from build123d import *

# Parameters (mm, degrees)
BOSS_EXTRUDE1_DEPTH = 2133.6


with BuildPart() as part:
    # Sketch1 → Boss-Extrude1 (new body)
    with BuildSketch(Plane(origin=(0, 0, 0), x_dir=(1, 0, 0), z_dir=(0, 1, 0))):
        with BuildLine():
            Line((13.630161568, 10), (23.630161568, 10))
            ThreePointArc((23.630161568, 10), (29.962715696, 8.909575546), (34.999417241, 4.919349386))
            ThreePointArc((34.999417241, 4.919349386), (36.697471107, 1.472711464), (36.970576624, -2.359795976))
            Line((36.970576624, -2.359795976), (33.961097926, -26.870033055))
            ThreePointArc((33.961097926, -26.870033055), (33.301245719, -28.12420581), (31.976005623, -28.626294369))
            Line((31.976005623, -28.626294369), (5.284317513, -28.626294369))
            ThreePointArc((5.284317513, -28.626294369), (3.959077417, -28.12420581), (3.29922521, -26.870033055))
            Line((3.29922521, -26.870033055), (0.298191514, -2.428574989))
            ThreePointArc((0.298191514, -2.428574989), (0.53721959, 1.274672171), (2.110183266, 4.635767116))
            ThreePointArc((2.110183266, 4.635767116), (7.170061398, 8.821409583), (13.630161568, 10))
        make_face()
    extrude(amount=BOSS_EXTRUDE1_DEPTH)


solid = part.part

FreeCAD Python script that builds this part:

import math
import FreeCAD as App
import Part
import Sketcher
Q = App.Units.Quantity

doc = App.newDocument("Part")
body = doc.addObject("PartDesign::Body", "Body")

# Sketch on XZ plane
sketch1 = doc.addObject("Sketcher::SketchObject", "Sketch")
body.addObject(sketch1)
sketch1.AttachmentSupport = (doc.XZ_Plane, [""])
sketch1.MapMode = "FlatFace"
sketch1.addGeometry([
    Part.LineSegment(App.Vector(23.6, -10, 0), App.Vector(13.6, -10, 0)),  # 0
    Part.ArcOfCircle(Part.Circle(App.Vector(12.7, 3, 0), App.Vector(0, 0, 1), 13), math.radians(-144), math.radians(-86)),  # 1
    Part.ArcOfCircle(Part.Circle(App.Vector(10.2, 1.2, 0), App.Vector(0, 0, 1), 10), math.radians(173), math.radians(216)),  # 2
    Part.LineSegment(App.Vector(0.3, 2.4, 0), App.Vector(3.3, 26.9, 0)),  # 3
    Part.ArcOfCircle(Part.Circle(App.Vector(5.3, 26.6, 0), App.Vector(0, 0, 1), 2), math.radians(90), math.radians(173)),  # 4
    Part.LineSegment(App.Vector(5.3, 28.6, 0), App.Vector(32, 28.6, 0)),  # 5
    Part.ArcOfCircle(Part.Circle(App.Vector(32, 26.6, 0), App.Vector(0, 0, 1), 2), math.radians(7), math.radians(90)),  # 6
    Part.LineSegment(App.Vector(34, 26.9, 0), App.Vector(37, 2.4, 0)),  # 7
    Part.ArcOfCircle(Part.Circle(App.Vector(27, 1.1, 0), App.Vector(0, 0, 1), 10), math.radians(-37), math.radians(7)),  # 8
    Part.ArcOfCircle(Part.Circle(App.Vector(24.7, 3, 0), App.Vector(0, 0, 1), 13), math.radians(-95), math.radians(-37)),  # 9
], False)
sketch1.addConstraint([
    Sketcher.Constraint("Coincident", 0, 2, 1, 2),
    Sketcher.Constraint("Tangent", 1, 1, 2, 2),
    Sketcher.Constraint("Tangent", 2, 1, 3, 1),
    Sketcher.Constraint("Tangent", 3, 2, 4, 2),
    Sketcher.Constraint("Tangent", 4, 1, 5, 1),
    Sketcher.Constraint("Tangent", 5, 2, 6, 2),
    Sketcher.Constraint("Tangent", 6, 1, 7, 1),
    Sketcher.Constraint("Tangent", 7, 2, 8, 2),
    Sketcher.Constraint("Tangent", 8, 1, 9, 2),
    Sketcher.Constraint("Coincident", 9, 1, 0, 1),
    Sketcher.Constraint("Horizontal", 0),
    Sketcher.Constraint("Horizontal", 5),
    Sketcher.Constraint("Equal", 4, 6),
    Sketcher.Constraint("Equal", 2, 8),
    Sketcher.Constraint("Equal", 1, 9),
    Sketcher.Constraint("Horizontal", 3, 2, 6, 1),
    Sketcher.Constraint("Radius", 1, 13.0),
    Sketcher.Constraint("Radius", 2, 10.0),
    Sketcher.Constraint("Radius", 4, 2.0),
    Sketcher.Constraint("DistanceX", 0, 2, 0, 1, 10.0),
    Sketcher.Constraint("Angle", 3, Q("83 deg")),
    Sketcher.Constraint("DistanceY", 0, 2, -1, 1, 10.0),
    Sketcher.Constraint("DistanceY", 2, 1, 1, 3, 0.535001),
    Sketcher.Constraint("DistanceX", 5, 1, 5, 2, 26.691688),
    Sketcher.Constraint("DistanceY", 7, 2, 6, 3, 24.266498),
    Sketcher.Constraint("Distance", 3, 24.625009),
    Sketcher.Constraint("DistanceY", -1, 1, 2, 3, 1.209882),
    Sketcher.Constraint("DistanceX", -1, 1, 0, 2, 13.630162),
])
pad1 = doc.addObject("PartDesign::Pad", "Pad")
body.addObject(pad1)
pad1.Profile = sketch1
pad1.Length = 2133.6
pad1.Reversed = True

doc.recompute()
